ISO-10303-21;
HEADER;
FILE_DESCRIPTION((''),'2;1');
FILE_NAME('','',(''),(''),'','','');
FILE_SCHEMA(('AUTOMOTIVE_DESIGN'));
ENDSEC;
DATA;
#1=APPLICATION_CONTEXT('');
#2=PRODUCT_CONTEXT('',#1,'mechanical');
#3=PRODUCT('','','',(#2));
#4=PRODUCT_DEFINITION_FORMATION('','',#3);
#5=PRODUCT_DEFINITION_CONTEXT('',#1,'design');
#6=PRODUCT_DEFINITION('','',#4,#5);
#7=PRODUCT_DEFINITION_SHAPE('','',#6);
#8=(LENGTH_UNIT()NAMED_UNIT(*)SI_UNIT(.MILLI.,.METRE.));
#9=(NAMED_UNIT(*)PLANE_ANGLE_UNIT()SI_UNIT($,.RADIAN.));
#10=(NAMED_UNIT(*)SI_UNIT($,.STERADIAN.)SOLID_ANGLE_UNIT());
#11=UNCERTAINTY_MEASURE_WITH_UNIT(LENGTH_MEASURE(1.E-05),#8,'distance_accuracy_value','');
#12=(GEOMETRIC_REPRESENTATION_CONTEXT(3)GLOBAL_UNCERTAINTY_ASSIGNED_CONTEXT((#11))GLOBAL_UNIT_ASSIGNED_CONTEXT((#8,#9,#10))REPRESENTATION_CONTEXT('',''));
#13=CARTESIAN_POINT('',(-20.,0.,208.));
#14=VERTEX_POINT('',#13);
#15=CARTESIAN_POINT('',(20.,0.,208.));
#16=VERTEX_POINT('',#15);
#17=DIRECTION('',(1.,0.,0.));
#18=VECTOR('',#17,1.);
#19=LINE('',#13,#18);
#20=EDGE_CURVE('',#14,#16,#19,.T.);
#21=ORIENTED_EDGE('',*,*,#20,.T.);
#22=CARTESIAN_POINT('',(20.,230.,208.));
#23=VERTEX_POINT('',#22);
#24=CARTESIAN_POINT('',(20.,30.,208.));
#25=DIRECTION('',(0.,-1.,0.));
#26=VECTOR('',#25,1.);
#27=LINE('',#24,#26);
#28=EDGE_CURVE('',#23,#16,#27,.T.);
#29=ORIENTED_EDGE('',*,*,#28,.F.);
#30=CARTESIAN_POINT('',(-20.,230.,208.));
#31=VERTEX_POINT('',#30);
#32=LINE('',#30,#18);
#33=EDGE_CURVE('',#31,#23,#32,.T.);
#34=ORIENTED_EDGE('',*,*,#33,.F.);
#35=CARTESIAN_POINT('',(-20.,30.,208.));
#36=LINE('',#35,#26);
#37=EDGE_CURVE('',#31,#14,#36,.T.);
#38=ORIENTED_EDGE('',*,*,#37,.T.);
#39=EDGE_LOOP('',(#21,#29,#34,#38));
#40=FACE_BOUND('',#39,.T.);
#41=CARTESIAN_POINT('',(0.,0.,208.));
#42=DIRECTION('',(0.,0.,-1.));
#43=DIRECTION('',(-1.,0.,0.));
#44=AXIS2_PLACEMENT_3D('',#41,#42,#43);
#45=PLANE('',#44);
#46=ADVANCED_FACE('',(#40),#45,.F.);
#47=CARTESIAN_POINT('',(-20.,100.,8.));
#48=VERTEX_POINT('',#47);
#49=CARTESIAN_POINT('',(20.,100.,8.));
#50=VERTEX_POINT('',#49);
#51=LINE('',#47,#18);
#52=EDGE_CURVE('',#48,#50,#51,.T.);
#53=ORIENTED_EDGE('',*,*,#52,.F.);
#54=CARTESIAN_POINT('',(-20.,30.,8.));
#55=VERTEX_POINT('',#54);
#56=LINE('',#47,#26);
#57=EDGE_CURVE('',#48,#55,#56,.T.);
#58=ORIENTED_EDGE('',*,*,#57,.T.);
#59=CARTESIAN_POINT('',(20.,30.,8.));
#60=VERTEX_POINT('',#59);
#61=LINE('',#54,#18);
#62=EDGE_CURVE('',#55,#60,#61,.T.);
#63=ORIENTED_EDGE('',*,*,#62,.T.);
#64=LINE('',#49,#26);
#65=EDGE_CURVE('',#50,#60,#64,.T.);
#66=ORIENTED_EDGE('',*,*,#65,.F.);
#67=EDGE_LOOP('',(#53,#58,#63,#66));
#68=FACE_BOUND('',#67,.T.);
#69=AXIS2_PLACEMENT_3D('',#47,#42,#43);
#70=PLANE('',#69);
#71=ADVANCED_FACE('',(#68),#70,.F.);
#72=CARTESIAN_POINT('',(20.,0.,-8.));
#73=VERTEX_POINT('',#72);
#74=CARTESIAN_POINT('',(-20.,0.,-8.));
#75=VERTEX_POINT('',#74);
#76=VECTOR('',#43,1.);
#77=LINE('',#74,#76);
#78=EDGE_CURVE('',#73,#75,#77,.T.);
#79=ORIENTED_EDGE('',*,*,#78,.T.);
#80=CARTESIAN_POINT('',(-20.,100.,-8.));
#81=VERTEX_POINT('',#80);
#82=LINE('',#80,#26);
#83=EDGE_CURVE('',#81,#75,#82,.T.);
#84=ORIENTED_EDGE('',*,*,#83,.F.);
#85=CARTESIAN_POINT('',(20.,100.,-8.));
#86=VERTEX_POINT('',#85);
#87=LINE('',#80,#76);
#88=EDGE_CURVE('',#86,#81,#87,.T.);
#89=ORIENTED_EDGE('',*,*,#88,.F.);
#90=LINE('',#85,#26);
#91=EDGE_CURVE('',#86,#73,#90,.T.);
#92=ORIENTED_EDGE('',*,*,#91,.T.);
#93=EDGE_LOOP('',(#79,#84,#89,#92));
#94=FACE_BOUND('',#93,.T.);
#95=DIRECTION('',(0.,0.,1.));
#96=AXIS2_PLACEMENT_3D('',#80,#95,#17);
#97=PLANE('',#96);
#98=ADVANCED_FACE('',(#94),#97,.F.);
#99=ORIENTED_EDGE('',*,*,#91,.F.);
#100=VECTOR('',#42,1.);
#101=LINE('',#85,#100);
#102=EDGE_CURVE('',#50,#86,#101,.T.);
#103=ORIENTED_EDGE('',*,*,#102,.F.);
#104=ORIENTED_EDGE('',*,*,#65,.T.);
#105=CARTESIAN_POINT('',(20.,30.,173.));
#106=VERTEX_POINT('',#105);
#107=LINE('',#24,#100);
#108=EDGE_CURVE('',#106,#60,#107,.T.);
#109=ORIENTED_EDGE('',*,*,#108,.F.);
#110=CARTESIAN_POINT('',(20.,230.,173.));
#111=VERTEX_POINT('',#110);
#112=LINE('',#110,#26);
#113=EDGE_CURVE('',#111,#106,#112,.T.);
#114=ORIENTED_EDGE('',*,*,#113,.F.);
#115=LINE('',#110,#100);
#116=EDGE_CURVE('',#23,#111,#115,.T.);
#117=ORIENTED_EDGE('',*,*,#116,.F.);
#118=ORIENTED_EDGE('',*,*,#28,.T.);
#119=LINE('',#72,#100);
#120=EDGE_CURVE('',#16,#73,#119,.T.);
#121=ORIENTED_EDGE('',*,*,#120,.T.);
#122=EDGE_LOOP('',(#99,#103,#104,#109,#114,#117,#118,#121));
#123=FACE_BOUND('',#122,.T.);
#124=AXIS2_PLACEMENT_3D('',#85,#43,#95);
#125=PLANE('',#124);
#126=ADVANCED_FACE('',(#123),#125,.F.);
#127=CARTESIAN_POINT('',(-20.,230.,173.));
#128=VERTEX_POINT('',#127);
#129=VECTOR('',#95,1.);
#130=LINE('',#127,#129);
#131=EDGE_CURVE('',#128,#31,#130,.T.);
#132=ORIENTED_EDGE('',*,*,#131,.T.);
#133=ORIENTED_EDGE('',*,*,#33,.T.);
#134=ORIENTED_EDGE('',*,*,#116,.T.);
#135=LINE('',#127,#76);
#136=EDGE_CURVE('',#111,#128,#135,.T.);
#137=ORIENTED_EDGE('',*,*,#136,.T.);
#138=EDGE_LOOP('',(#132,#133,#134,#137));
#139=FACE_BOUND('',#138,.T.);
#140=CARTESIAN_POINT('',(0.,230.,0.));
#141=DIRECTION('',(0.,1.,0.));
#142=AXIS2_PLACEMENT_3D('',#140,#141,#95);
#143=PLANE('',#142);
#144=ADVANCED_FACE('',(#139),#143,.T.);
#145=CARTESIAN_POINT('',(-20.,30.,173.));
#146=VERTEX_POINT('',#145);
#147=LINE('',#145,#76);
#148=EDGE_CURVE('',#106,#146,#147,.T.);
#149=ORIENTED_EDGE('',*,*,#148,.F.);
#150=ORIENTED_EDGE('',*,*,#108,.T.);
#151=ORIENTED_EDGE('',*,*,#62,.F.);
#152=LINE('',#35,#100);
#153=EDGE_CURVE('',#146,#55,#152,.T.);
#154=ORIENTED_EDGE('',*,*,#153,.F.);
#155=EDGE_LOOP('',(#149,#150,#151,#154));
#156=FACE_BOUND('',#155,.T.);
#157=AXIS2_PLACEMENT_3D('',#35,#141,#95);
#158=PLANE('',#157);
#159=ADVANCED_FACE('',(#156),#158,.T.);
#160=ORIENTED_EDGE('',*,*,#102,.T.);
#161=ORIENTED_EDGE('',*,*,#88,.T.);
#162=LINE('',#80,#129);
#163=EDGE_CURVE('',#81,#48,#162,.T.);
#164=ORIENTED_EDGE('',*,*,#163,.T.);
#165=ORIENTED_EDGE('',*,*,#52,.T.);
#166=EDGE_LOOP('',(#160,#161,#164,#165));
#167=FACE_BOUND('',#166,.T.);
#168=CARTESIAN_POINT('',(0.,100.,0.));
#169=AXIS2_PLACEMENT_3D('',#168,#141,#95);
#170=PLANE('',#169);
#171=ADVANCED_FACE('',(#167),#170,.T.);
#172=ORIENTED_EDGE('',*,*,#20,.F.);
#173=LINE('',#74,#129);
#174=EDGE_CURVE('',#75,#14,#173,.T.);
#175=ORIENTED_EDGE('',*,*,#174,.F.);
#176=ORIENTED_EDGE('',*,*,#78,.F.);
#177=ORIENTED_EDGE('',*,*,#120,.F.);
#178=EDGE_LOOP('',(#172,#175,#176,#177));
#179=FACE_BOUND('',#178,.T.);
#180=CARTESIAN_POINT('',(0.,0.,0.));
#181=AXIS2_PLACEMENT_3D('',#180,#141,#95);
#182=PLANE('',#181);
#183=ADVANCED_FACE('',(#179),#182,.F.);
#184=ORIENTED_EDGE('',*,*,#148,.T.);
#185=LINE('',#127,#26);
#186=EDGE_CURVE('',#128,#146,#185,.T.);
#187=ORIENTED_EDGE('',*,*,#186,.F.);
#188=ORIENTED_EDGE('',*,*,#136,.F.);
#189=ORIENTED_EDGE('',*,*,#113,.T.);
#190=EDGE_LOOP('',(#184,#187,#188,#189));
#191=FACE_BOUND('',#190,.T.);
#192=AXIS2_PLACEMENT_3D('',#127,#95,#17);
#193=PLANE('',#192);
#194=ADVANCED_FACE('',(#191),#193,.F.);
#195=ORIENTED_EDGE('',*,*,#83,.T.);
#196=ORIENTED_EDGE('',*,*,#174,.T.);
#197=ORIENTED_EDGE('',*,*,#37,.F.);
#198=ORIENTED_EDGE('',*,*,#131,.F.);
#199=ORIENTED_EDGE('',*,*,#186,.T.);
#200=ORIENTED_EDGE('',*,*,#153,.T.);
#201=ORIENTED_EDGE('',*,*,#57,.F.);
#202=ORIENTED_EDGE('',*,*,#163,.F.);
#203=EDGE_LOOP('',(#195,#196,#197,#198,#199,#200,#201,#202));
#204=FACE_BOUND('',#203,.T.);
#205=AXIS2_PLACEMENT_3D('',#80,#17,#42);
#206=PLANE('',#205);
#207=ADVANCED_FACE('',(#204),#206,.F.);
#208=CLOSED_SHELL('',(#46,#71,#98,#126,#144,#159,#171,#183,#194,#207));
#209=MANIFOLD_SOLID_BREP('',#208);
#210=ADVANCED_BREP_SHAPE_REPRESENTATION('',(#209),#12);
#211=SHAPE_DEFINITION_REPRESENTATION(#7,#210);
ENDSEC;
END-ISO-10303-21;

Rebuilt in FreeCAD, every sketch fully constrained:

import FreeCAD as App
import Part
import Sketcher

V = App.Vector
Q = App.Units.Quantity

doc = App.newDocument("Part")
body = doc.addObject("PartDesign::Body", "Body")

# Sketch on XZ plane
sketch1 = doc.addObject("Sketcher::SketchObject", "Sketch")
body.addObject(sketch1)
sketch1.AttachmentSupport = (doc.XZ_Plane, [""])
sketch1.MapMode = "FlatFace"
sketch1.addGeometry([
    Part.LineSegment(V(-20, -8, 0), V(-20, 8, 0)),
    Part.LineSegment(V(-20, 8, 0), V(20, 8, 0)),
    Part.LineSegment(V(20, 8, 0), V(20, -8, 0)),
    Part.LineSegment(V(20, -8, 0), V(-20, -8, 0)),
], False)
sketch1.addConstraint([
    Sketcher.Constraint("Coincident", 0, 2, 1, 1),
    Sketcher.Constraint("Coincident", 1, 2, 2, 1),
    Sketcher.Constraint("Coincident", 2, 2, 3, 1),
    Sketcher.Constraint("Coincident", 3, 2, 0, 1),
    Sketcher.Constraint("Vertical", 0),
    Sketcher.Constraint("Horizontal", 1),
    Sketcher.Constraint("Vertical", 2),
    Sketcher.Constraint("Horizontal", 3),
    Sketcher.Constraint("Symmetric", 0, 2, 2, 2, -1, 1),
    Sketcher.Constraint("DistanceX", 1, 1, 1, 2, Q("40 mm")),
    Sketcher.Constraint("DistanceY", 0, 1, 0, 2, Q("16 mm")),
])
pad1 = doc.addObject("PartDesign::Pad", "Pad")
body.addObject(pad1)
pad1.Profile = sketch1
pad1.Length = 100
pad1.Reversed = True

# Sketch on XY plane
sketch2 = doc.addObject("Sketcher::SketchObject", "Sketch001")
body.addObject(sketch2)
sketch2.AttachmentSupport = (doc.XY_Plane, [""])
sketch2.MapMode = "FlatFace"
sketch2.AttachmentOffset = App.Placement(V(0, 0, 8), App.Rotation())
sketch2.addGeometry([
    Part.LineSegment(V(-20, 30, 0), V(-20, 0, 0)),
    Part.LineSegment(V(-20, 0, 0), V(20, 0, 0)),
    Part.LineSegment(V(20, 0, 0), V(20, 30, 0)),
    Part.LineSegment(V(20, 30, 0), V(-20, 30, 0)),
], False)
sketch2.addConstraint([
    Sketcher.Constraint("Coincident", 0, 2, 1, 1),
    Sketcher.Constraint("Coincident", 1, 2, 2, 1),
    Sketcher.Constraint("Coincident", 2, 2, 3, 1),
    Sketcher.Constraint("Coincident", 3, 2, 0, 1),
    Sketcher.Constraint("Vertical", 0),
    Sketcher.Constraint("Horizontal", 1),
    Sketcher.Constraint("Vertical", 2),
    Sketcher.Constraint("Horizontal", 3),
    Sketcher.Constraint("Symmetric", 0, 2, 1, 2, -1, 1),
    Sketcher.Constraint("DistanceX", 1, 1, 1, 2, Q("40 mm")),
    Sketcher.Constraint("DistanceY", 0, 2, 0, 1, Q("30 mm")),
])
pad2 = doc.addObject("PartDesign::Pad", "Pad001")
body.addObject(pad2)
pad2.Profile = sketch2
pad2.Length = 200

# Sketch on XZ plane
sketch3 = doc.addObject("Sketcher::SketchObject", "Sketch002")
body.addObject(sketch3)
sketch3.AttachmentSupport = (doc.XZ_Plane, [""])
sketch3.MapMode = "FlatFace"
sketch3.AttachmentOffset = App.Placement(V(0, 0, -30), App.Rotation())
sketch3.addGeometry([
    Part.LineSegment(V(-20, 173, 0), V(-20, 208, 0)),
    Part.LineSegment(V(-20, 208, 0), V(20, 208, 0)),
    Part.LineSegment(V(20, 208, 0), V(20, 173, 0)),
    Part.LineSegment(V(20, 173, 0), V(-20, 173, 0)),
], False)
sketch3.addConstraint([
    Sketcher.Constraint("Coincident", 0, 2, 1, 1),
    Sketcher.Constraint("Coincident", 1, 2, 2, 1),
    Sketcher.Constraint("Coincident", 2, 2, 3, 1),
    Sketcher.Constraint("Coincident", 3, 2, 0, 1),
    Sketcher.Constraint("Vertical", 0),
    Sketcher.Constraint("Horizontal", 1),
    Sketcher.Constraint("Vertical", 2),
    Sketcher.Constraint("Horizontal", 3),
    Sketcher.Constraint("DistanceX", 1, 1, 1, 2, Q("40 mm")),
    Sketcher.Constraint("DistanceY", 0, 1, 0, 2, Q("35 mm")),
    Sketcher.Constraint("DistanceX", 0, 2, -1, 1, Q("20 mm")),
    Sketcher.Constraint("DistanceY", -1, 1, 0, 2, Q("208 mm")),
])
pad3 = doc.addObject("PartDesign::Pad", "Pad002")
body.addObject(pad3)
pad3.Profile = sketch3
pad3.Length = 200
pad3.Reversed = True

doc.recompute()
